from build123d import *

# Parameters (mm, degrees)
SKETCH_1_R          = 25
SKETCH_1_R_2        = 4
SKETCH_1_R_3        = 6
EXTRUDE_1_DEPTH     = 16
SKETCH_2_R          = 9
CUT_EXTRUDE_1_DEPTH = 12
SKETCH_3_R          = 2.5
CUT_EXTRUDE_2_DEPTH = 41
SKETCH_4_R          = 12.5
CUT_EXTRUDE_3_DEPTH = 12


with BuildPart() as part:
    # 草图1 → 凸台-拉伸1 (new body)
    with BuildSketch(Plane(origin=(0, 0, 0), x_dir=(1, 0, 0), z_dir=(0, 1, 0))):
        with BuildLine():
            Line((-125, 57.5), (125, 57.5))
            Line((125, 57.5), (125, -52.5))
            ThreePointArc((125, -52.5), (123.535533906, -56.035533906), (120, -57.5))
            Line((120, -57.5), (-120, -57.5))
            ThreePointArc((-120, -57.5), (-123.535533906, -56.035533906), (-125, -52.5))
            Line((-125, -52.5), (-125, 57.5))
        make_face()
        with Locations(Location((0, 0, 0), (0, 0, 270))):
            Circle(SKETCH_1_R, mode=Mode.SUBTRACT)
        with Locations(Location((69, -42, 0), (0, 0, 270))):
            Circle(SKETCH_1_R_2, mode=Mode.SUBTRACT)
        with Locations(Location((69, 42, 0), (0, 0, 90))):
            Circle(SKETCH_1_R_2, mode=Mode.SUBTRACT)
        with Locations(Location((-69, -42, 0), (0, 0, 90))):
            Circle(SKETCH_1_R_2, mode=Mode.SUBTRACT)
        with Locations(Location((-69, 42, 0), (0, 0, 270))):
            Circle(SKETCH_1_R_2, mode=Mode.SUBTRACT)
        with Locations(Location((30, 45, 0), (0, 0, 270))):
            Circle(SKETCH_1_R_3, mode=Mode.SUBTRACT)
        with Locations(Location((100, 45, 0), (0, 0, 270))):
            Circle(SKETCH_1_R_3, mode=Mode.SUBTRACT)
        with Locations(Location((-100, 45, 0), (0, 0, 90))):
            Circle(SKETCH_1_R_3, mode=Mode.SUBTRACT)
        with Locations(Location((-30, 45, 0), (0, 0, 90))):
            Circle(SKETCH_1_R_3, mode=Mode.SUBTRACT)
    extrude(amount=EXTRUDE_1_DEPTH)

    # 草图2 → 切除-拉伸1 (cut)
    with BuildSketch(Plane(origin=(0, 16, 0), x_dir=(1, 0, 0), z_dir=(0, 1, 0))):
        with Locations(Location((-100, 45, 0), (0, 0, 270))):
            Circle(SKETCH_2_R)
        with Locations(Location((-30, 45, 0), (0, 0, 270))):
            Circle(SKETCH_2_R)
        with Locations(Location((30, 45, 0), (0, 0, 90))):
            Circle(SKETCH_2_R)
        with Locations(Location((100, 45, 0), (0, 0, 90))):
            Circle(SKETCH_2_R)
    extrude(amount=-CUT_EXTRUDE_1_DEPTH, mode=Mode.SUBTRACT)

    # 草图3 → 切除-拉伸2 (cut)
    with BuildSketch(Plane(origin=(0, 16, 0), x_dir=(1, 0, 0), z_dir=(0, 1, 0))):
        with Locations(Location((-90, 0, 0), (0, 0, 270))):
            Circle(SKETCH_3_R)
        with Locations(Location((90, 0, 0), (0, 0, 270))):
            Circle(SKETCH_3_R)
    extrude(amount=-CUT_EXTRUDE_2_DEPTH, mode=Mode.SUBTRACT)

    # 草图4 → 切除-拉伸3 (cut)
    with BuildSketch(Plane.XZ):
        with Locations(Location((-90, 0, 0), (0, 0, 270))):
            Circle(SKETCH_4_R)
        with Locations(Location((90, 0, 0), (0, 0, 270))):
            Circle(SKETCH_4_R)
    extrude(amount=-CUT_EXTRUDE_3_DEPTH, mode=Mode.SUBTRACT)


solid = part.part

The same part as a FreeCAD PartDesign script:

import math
import FreeCAD as App
import Part
import Sketcher
from FreeCAD import Vector
Q = App.Units.Quantity

doc = App.newDocument("Part")
body = doc.addObject("PartDesign::Body", "Body")

sketch1 = body.newObject("Sketcher::SketchObject", "Sketch")
sketch1.AttachmentSupport = (doc.getObject("XZ_Plane"), [""])
sketch1.MapMode = "FlatFace"
sketch1.addGeometry([
    Part.LineSegment(Vector(125, -57.5, 0), Vector(-125, -57.5, 0)),
    Part.LineSegment(Vector(-125, -57.5, 0), Vector(-125, 52.5, 0)),
    Part.ArcOfCircle(Part.Circle(Vector(-120, 52.5, 0), Vector(0, 0, 1), 5), math.radians(90), math.radians(180)),
    Part.LineSegment(Vector(-120, 57.5, 0), Vector(120, 57.5, 0)),
    Part.ArcOfCircle(Part.Circle(Vector(120, 52.5, 0), Vector(0, 0, 1), 5), math.radians(0), math.radians(90)),
    Part.LineSegment(Vector(125, 52.5, 0), Vector(125, -57.5, 0)),
    Part.Circle(Vector(69, 42, 0), Vector(0, 0, 1), 4),
    Part.Circle(Vector(-69, 42, 0), Vector(0, 0, 1), 4),
    Part.Circle(Vector(0, 0, 0), Vector(0, 0, 1), 25),
    Part.Circle(Vector(100, -45, 0), Vector(0, 0, 1), 6),
    Part.Circle(Vector(69, -42, 0), Vector(0, 0, 1), 4),
    Part.Circle(Vector(30, -45, 0), Vector(0, 0, 1), 6),
    Part.Circle(Vector(-30, -45, 0), Vector(0, 0, 1), 6),
    Part.Circle(Vector(-69, -42, 0), Vector(0, 0, 1), 4),
    Part.Circle(Vector(-100, -45, 0), Vector(0, 0, 1), 6),
], False)
sketch1.addConstraint([
    Sketcher.Constraint("Coincident", 0, 2, 1, 1),
    Sketcher.Constraint("Tangent", 1, 2, 2, 2),
    Sketcher.Constraint("Tangent", 2, 1, 3, 1),
    Sketcher.Constraint("Tangent", 3, 2, 4, 2),
    Sketcher.Constraint("Tangent", 4, 1, 5, 1),
    Sketcher.Constraint("Coincident", 5, 2, 0, 1),
    Sketcher.Constraint("Horizontal", 0),
    Sketcher.Constraint("Vertical", 1),
    Sketcher.Constraint("Horizontal", 3),
    Sketcher.Constraint("Vertical", 5),
    Sketcher.Constraint("Coincident", 8, 3, -1, 1),
    Sketcher.Constraint("Equal", 2, 4),
    Sketcher.Constraint("Equal", 6, 7),
    Sketcher.Constraint("Equal", 7, 10),
    Sketcher.Constraint("Equal", 9, 11),
    Sketcher.Constraint("Equal", 11, 12),
    Sketcher.Constraint("Equal", 10, 13),
    Sketcher.Constraint("Equal", 12, 14),
    Sketcher.Constraint("Symmetric", 7, 3, 10, 3, -1, 1),
    Sketcher.Constraint("Symmetric", 6, 3, 13, 3, -1, 1),
    Sketcher.Constraint("Symmetric", 6, 3, 7, 3, -2),
    Sketcher.Constraint("Symmetric", 11, 3, 12, 3, -2),
    Sketcher.Constraint("Symmetric", 9, 3, 14, 3, -2),
    Sketcher.Constraint("Horizontal", 9, 3, 11, 3),
    Sketcher.Constraint("Diameter", 6, Q("8 mm")),
    Sketcher.Constraint("Diameter", 8, Q("50 mm")),
    Sketcher.Constraint("Diameter", 9, Q("12 mm")),
    Sketcher.Constraint("Radius", 2, Q("5 mm")),
    Sketcher.Constraint("DistanceX", 0, 2, 0, 1, Q("250 mm")),
    Sketcher.Constraint("DistanceY", 1, 1, 1, 2, Q("110 mm")),
    Sketcher.Constraint("DistanceX", 2, 3, -1, 1, Q("120 mm")),
    Sketcher.Constraint("DistanceX", -1, 1, 6, 3, Q("69 mm")),
    Sketcher.Constraint("DistanceY", -1, 1, 6, 3, Q("42 mm")),
    Sketcher.Constraint("DistanceX", -1, 1, 9, 3, Q("100 mm")),
    Sketcher.Constraint("DistanceY", 9, 3, -1, 1, Q("45 mm")),
    Sketcher.Constraint("DistanceX", -1, 1, 11, 3, Q("30 mm")),
    Sketcher.Constraint("DistanceY", -1, 1, 2, 3, Q("52.5 mm")),
])
pad1 = body.newObject("PartDesign::Pad", "Pad")
pad1.Profile = sketch1
pad1.Length = 16
pad1.Reversed = True

sketch2 = body.newObject("Sketcher::SketchObject", "Sketch001")
sketch2.AttachmentSupport = (doc.getObject("XZ_Plane"), [""])
sketch2.MapMode = "FlatFace"
sketch2.AttachmentOffset = App.Placement(Vector(0, 0, -16), App.Rotation())
sketch2.addGeometry([
    Part.Circle(Vector(-100, -45, 0), Vector(0, 0, 1), 9),
    Part.Circle(Vector(-30, -45, 0), Vector(0, 0, 1), 9),
    Part.Circle(Vector(30, -45, 0), Vector(0, 0, 1), 9),
    Part.Circle(Vector(100, -45, 0), Vector(0, 0, 1), 9),
], False)
sketch2.addConstraint([
    Sketcher.Constraint("Equal", 0, 1),
    Sketcher.Constraint("Equal", 1, 2),
    Sketcher.Constraint("Equal", 2, 3),
    Sketcher.Constraint("Symmetric", 1, 3, 2, 3, -2),
    Sketcher.Constraint("Symmetric", 0, 3, 3, 3, -2),
    Sketcher.Constraint("Horizontal", 0, 3, 1, 3),
    Sketcher.Constraint("Diameter", 0, Q("18 mm")),
    Sketcher.Constraint("DistanceX", 0, 3, -1, 1, Q("100 mm")),
    Sketcher.Constraint("DistanceY", 0, 3, -1, 1, Q("45 mm")),
    Sketcher.Constraint("DistanceX", 1, 3, -1, 1, Q("30 mm")),
])
pocket1 = body.newObject("PartDesign::Pocket", "Pocket")
pocket1.Profile = sketch2
pocket1.Length = 12
pocket1.Reversed = True

sketch3 = body.newObject("Sketcher::SketchObject", "Sketch002")
sketch3.AttachmentSupport = (doc.getObject("XZ_Plane"), [""])
sketch3.MapMode = "FlatFace"
sketch3.AttachmentOffset = App.Placement(Vector(0, 0, -16), App.Rotation())
sketch3.addGeometry([
    Part.Circle(Vector(-90, 0, 0), Vector(0, 0, 1), 2.5),
    Part.Circle(Vector(90, 0, 0), Vector(0, 0, 1), 2.5),
], False)
sketch3.addConstraint([
    Sketcher.Constraint("Equal", 0, 1),
    Sketcher.Constraint("Symmetric", 0, 3, 1, 3, -1, 1),
    Sketcher.Constraint("PointOnObject", 0, 3, -1),
    Sketcher.Constraint("Diameter", 0, Q("5 mm")),
    Sketcher.Constraint("DistanceX", 0, 3, -1, 1, Q("90 mm")),
])
pocket2 = body.newObject("PartDesign::Pocket", "Pocket001")
pocket2.Profile = sketch3
pocket2.Length = 41
pocket2.Reversed = True

sketch4 = body.newObject("Sketcher::SketchObject", "Sketch003")
sketch4.AttachmentSupport = (doc.getObject("XZ_Plane"), [""])
sketch4.MapMode = "FlatFace"
sketch4.addGeometry([
    Part.Circle(Vector(-90, 0, 0), Vector(0, 0, 1), 12.5),
    Part.Circle(Vector(90, 0, 0), Vector(0, 0, 1), 12.5),
], False)
sketch4.addConstraint([
    Sketcher.Constraint("Equal", 0, 1),
    Sketcher.Constraint("Symmetric", 0, 3, 1, 3, -1, 1),
    Sketcher.Constraint("PointOnObject", 0, 3, -1),
    Sketcher.Constraint("Diameter", 0, Q("25 mm")),
    Sketcher.Constraint("DistanceX", 0, 3, -1, 1, Q("90 mm")),
])
pocket3 = body.newObject("PartDesign::Pocket", "Pocket002")
pocket3.Profile = sketch4
pocket3.Length = 12

doc.recompute()
